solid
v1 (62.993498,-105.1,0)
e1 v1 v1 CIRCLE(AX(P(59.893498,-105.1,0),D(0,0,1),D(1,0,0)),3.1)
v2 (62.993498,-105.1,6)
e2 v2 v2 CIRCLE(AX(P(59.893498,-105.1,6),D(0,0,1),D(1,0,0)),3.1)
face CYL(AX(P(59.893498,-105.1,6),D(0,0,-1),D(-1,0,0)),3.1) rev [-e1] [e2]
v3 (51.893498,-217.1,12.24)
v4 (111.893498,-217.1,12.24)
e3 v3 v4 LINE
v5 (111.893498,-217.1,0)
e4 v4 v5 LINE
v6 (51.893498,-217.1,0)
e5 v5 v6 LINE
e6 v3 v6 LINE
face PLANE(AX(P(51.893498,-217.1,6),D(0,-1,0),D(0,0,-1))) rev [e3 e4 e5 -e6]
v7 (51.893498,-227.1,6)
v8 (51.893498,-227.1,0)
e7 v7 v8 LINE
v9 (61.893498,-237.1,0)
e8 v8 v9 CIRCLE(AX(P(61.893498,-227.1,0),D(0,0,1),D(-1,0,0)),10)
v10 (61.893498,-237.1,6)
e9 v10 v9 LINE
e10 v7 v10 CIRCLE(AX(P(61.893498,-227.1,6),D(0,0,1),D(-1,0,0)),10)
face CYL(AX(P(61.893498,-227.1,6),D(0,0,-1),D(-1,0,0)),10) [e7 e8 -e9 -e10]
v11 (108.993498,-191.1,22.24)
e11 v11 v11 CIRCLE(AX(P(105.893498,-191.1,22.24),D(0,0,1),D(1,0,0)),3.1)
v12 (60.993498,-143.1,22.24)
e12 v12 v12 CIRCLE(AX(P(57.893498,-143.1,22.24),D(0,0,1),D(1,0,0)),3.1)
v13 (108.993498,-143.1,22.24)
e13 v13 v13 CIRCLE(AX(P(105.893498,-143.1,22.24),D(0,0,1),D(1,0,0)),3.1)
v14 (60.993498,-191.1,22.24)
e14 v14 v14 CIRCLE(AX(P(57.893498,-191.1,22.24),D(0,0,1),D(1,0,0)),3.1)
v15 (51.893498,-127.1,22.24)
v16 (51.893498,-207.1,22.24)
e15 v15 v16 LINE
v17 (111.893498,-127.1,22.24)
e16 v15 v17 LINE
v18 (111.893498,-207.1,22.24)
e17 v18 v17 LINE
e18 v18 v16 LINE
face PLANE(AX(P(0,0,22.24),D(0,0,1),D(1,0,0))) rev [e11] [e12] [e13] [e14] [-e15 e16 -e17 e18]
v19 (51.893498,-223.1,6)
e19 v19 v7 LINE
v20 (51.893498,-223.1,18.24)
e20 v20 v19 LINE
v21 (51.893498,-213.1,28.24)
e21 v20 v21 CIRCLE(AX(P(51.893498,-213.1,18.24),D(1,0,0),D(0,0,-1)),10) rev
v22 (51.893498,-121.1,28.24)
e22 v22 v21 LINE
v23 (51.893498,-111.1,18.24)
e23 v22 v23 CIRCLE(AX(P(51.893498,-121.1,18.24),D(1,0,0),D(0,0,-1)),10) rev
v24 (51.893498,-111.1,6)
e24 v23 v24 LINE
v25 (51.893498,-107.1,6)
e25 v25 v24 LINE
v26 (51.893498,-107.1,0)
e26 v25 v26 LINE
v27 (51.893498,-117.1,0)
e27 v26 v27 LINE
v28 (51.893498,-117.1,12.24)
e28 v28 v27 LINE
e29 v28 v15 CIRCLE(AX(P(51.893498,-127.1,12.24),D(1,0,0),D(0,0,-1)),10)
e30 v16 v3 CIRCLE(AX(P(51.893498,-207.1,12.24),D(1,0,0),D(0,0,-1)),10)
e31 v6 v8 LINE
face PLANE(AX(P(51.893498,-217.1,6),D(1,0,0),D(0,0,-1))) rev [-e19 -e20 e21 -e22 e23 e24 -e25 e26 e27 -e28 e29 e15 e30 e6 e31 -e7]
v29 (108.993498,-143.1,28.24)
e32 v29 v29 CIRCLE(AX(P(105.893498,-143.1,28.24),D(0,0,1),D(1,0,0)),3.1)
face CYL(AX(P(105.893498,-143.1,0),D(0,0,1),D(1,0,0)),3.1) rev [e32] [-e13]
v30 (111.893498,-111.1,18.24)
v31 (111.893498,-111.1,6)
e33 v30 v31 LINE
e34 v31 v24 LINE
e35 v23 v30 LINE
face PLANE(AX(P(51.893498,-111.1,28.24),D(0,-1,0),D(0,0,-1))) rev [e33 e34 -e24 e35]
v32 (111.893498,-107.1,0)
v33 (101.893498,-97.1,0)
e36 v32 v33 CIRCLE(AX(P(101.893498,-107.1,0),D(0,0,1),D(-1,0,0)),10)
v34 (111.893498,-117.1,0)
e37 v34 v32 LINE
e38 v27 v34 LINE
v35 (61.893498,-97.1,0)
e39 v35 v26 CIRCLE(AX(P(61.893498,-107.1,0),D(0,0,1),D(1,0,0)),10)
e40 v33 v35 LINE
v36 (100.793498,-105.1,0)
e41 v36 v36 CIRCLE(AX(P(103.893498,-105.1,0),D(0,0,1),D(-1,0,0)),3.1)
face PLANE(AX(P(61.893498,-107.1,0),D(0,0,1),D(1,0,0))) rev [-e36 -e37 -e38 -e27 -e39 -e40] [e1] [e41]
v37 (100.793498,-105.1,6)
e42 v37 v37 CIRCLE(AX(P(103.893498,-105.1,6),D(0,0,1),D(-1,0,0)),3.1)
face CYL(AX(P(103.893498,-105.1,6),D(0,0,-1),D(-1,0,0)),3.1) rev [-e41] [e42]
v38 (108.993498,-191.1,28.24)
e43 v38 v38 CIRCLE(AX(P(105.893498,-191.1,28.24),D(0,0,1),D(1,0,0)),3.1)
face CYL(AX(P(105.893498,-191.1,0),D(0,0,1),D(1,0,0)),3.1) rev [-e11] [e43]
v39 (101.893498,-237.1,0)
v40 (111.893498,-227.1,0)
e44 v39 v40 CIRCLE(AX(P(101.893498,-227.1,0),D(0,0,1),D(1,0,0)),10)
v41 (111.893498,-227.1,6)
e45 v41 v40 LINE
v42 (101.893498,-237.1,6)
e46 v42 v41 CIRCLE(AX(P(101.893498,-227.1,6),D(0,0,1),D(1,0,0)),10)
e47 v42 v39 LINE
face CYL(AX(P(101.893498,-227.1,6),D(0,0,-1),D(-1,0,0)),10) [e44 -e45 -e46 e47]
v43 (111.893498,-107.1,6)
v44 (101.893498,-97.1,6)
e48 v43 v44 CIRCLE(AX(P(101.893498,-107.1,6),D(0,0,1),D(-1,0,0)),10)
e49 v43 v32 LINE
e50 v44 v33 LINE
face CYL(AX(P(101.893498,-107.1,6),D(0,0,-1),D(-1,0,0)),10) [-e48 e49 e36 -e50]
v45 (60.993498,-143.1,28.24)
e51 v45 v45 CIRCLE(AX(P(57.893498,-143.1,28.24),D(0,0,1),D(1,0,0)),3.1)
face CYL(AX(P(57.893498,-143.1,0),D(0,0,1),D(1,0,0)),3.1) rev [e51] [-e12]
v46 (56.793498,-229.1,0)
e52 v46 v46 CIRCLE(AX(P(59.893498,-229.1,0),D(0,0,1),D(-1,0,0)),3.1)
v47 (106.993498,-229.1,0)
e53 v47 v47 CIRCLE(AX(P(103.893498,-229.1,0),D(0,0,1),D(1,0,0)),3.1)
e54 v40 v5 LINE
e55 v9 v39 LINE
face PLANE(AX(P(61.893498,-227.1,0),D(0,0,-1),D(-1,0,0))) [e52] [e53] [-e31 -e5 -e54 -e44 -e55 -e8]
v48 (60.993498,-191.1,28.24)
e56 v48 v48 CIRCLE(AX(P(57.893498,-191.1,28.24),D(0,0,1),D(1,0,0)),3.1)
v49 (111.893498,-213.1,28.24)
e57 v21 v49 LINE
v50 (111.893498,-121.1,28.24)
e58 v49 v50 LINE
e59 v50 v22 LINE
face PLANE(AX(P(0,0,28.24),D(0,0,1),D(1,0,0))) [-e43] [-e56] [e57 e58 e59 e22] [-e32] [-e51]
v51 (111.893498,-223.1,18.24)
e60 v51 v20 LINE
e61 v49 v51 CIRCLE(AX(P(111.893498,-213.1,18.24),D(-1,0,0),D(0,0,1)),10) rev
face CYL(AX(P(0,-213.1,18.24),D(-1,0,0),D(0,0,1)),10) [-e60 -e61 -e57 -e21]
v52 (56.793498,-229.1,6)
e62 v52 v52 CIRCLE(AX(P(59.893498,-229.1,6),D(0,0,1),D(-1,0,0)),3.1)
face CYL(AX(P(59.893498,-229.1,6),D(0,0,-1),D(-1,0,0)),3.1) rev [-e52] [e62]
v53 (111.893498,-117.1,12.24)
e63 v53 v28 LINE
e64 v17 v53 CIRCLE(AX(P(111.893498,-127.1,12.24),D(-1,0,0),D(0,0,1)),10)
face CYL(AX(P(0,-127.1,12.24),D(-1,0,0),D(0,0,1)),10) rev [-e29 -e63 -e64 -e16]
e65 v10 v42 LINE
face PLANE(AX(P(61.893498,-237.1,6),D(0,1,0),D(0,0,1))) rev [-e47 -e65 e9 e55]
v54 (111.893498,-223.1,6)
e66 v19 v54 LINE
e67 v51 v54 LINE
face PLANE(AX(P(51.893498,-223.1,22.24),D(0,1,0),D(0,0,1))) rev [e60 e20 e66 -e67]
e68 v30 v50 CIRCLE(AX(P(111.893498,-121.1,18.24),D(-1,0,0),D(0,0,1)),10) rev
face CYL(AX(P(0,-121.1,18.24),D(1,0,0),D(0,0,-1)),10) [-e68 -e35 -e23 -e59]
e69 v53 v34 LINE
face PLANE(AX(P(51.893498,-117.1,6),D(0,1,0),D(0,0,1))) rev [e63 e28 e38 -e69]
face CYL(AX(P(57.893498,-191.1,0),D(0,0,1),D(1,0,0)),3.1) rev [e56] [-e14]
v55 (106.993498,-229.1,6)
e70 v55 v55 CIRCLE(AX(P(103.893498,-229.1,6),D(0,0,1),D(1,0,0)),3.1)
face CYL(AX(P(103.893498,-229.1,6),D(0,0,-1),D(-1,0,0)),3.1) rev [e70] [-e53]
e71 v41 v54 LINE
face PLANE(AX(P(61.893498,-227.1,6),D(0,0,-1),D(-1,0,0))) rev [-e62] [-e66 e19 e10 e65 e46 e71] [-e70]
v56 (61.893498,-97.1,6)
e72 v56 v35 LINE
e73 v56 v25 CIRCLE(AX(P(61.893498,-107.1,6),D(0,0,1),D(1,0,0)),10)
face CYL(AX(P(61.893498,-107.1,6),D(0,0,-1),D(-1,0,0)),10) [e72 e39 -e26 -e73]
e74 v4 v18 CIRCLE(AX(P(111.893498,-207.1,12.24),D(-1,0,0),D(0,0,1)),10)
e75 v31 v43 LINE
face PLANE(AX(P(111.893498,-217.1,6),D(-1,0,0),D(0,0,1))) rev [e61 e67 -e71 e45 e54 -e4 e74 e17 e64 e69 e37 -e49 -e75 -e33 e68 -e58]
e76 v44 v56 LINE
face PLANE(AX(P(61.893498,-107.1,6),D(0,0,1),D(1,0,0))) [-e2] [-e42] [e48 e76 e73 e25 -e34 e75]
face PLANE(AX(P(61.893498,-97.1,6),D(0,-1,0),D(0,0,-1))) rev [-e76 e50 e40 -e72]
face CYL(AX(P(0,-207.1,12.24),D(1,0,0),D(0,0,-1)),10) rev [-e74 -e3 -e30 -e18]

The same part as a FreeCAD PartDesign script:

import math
import FreeCAD as App
import Part
import Sketcher


def edges_at(feature, points):
    """Names of the edges that pass closest to the given points."""
    edges = feature.Shape.Edges
    near = lambda p: min(range(len(edges)), key=lambda i: edges[i].distToShape(Part.Vertex(*p))[0])
    return sorted({f"Edge{near(p) + 1}" for p in points})

doc = App.newDocument("Part")
body = doc.addObject("PartDesign::Body", "Body")

# Sketch on XY plane
sketch1 = body.newObject("Sketcher::SketchObject", "Sketch")
sketch1.AttachmentSupport = (doc.getObject("XY_Plane"), [""])
sketch1.MapMode = "FlatFace"
sketch1.addGeometry(Part.LineSegment(App.Vector(111.9, -217.1, 0), App.Vector(51.9, -217.1, 0)), False)
sketch1.addGeometry(Part.LineSegment(App.Vector(51.9, -217.1, 0), App.Vector(51.9, -227.1, 0)), False)
sketch1.addGeometry(Part.ArcOfCircle(Part.Circle(App.Vector(61.9, -227.1, 0), App.Vector(0, 0, 1), 10), math.radians(-180), math.radians(-90)), False)
sketch1.addGeometry(Part.LineSegment(App.Vector(61.9, -237.1, 0), App.Vector(101.9, -237.1, 0)), False)
sketch1.addGeometry(Part.ArcOfCircle(Part.Circle(App.Vector(101.9, -227.1, 0), App.Vector(0, 0, 1), 10), math.radians(-90), math.radians(0)), False)
sketch1.addGeometry(Part.LineSegment(App.Vector(111.9, -227.1, 0), App.Vector(111.9, -217.1, 0)), False)
sketch1.addGeometry(Part.Circle(App.Vector(103.9, -229.1, 0), App.Vector(0, 0, 1), 3.1), False)
sketch1.addGeometry(Part.Circle(App.Vector(59.9, -229.1, 0), App.Vector(0, 0, 1), 3.1), False)
sketch1.addConstraint(Sketcher.Constraint("Coincident", 0, 2, 1, 1))
sketch1.addConstraint(Sketcher.Constraint("Tangent", 1, 2, 2, 1))
sketch1.addConstraint(Sketcher.Constraint("Tangent", 2, 2, 3, 1))
sketch1.addConstraint(Sketcher.Constraint("Tangent", 3, 2, 4, 1))
sketch1.addConstraint(Sketcher.Constraint("Tangent", 4, 2, 5, 1))
sketch1.addConstraint(Sketcher.Constraint("Coincident", 5, 2, 0, 1))
sketch1.addConstraint(Sketcher.Constraint("Horizontal", 0))
sketch1.addConstraint(Sketcher.Constraint("Vertical", 1))
sketch1.addConstraint(Sketcher.Constraint("Horizontal", 3))
sketch1.addConstraint(Sketcher.Constraint("Vertical", 5))
sketch1.addConstraint(Sketcher.Constraint("Equal", 2, 4))
sketch1.addConstraint(Sketcher.Constraint("Equal", 6, 7))
sketch1.addConstraint(Sketcher.Constraint("Horizontal", 6, 3, 7, 3))
sketch1.addConstraint(Sketcher.Constraint("Radius", 2, 10.0))
sketch1.addConstraint(Sketcher.Constraint("Diameter", 6, 6.2))
sketch1.addConstraint(Sketcher.Constraint("DistanceX", 0, 2, 0, 1, 60.0))
sketch1.addConstraint(Sketcher.Constraint("DistanceY", 1, 2, 1, 1, 10.0))
sketch1.addConstraint(Sketcher.Constraint("DistanceX", 4, 3, 6, 3, 2.0))
sketch1.addConstraint(Sketcher.Constraint("DistanceY", 6, 3, 4, 3, 2.0))
sketch1.addConstraint(Sketcher.Constraint("DistanceX", 7, 3, 2, 3, 2.0))
sketch1.addConstraint(Sketcher.Constraint("DistanceY", 2, 3, -1, 1, 227.1))
sketch1.addConstraint(Sketcher.Constraint("DistanceX", -1, 1, 2, 3, 61.893498))
pad1 = body.newObject("PartDesign::Pad", "Pad")
pad1.Profile = sketch1
pad1.Length = 6
body2 = doc.addObject("PartDesign::Body", "Body001")

# Sketch on XY plane
sketch2 = body2.newObject("Sketcher::SketchObject", "Sketch001")
sketch2.AttachmentSupport = (doc.getObject("XY_Plane001"), [""])
sketch2.MapMode = "FlatFace"
sketch2.addGeometry(Part.LineSegment(App.Vector(101.9, -97.1, 0), App.Vector(61.9, -97.1, 0)), False)
sketch2.addGeometry(Part.ArcOfCircle(Part.Circle(App.Vector(61.9, -107.1, 0), App.Vector(0, 0, 1), 10), math.radians(90), math.radians(180)), False)
sketch2.addGeometry(Part.LineSegment(App.Vector(51.9, -107.1, 0), App.Vector(51.9, -117.1, 0)), False)
sketch2.addGeometry(Part.LineSegment(App.Vector(51.9, -117.1, 0), App.Vector(111.9, -117.1, 0)), False)
sketch2.addGeometry(Part.LineSegment(App.Vector(111.9, -117.1, 0), App.Vector(111.9, -107.1, 0)), False)
sketch2.addGeometry(Part.ArcOfCircle(Part.Circle(App.Vector(101.9, -107.1, 0), App.Vector(0, 0, 1), 10), math.radians(0), math.radians(90)), False)
sketch2.addGeometry(Part.Circle(App.Vector(103.9, -105.1, 0), App.Vector(0, 0, 1), 3.1), False)
sketch2.addGeometry(Part.Circle(App.Vector(59.9, -105.1, 0), App.Vector(0, 0, 1), 3.1), False)
sketch2.addConstraint(Sketcher.Constraint("Tangent", 0, 2, 1, 1))
sketch2.addConstraint(Sketcher.Constraint("Tangent", 1, 2, 2, 1))
sketch2.addConstraint(Sketcher.Constraint("Coincident", 2, 2, 3, 1))
sketch2.addConstraint(Sketcher.Constraint("Coincident", 3, 2, 4, 1))
sketch2.addConstraint(Sketcher.Constraint("Tangent", 4, 2, 5, 1))
sketch2.addConstraint(Sketcher.Constraint("Tangent", 5, 2, 0, 1))
sketch2.addConstraint(Sketcher.Constraint("Horizontal", 0))
sketch2.addConstraint(Sketcher.Constraint("Vertical", 2))
sketch2.addConstraint(Sketcher.Constraint("Horizontal", 3))
sketch2.addConstraint(Sketcher.Constraint("Vertical", 4))
sketch2.addConstraint(Sketcher.Constraint("Equal", 1, 5))
sketch2.addConstraint(Sketcher.Constraint("Equal", 6, 7))
sketch2.addConstraint(Sketcher.Constraint("Horizontal", 6, 3, 7, 3))
sketch2.addConstraint(Sketcher.Constraint("Radius", 1, 10.0))
sketch2.addConstraint(Sketcher.Constraint("Diameter", 6, 6.2))
sketch2.addConstraint(Sketcher.Constraint("DistanceX", 0, 2, 0, 1, 40.0))
sketch2.addConstraint(Sketcher.Constraint("DistanceY", 2, 2, 2, 1, 10.0))
sketch2.addConstraint(Sketcher.Constraint("DistanceX", 5, 3, 6, 3, 2.0))
sketch2.addConstraint(Sketcher.Constraint("DistanceY", 5, 3, 6, 3, 2.0))
sketch2.addConstraint(Sketcher.Constraint("DistanceX", 7, 3, 1, 3, 2.0))
sketch2.addConstraint(Sketcher.Constraint("DistanceY", 1, 3, -1, 1, 107.1))
sketch2.addConstraint(Sketcher.Constraint("DistanceX", -1, 1, 1, 3, 61.893498))
pad2 = body2.newObject("PartDesign::Pad", "Pad001")
pad2.Profile = sketch2
pad2.Length = 6
body.AllowCompound = True
doc.recompute()

boolean = body.newObject("PartDesign::Boolean", "Boolean")
boolean.Type = "Fuse"
boolean.addObjects([body2])

# Sketch on XY plane
sketch3 = body.newObject("Sketcher::SketchObject", "Sketch002")
sketch3.AttachmentSupport = (doc.getObject("XY_Plane"), [""])
sketch3.MapMode = "FlatFace"
sketch3.AttachmentOffset = App.Placement(App.Vector(0, 0, 6), App.Rotation())
sketch3.addGeometry(Part.LineSegment(App.Vector(52, -217, 0), App.Vector(52, -223, 0)), False)
sketch3.addGeometry(Part.LineSegment(App.Vector(52, -223, 0), App.Vector(112, -223, 0)), False)
sketch3.addGeometry(Part.LineSegment(App.Vector(112, -223, 0), App.Vector(112, -217, 0)), False)
sketch3.addGeometry(Part.LineSegment(App.Vector(112, -217, 0), App.Vector(52, -217, 0)), False)
sketch3.addGeometry(Part.LineSegment(App.Vector(52, -111, 0), App.Vector(52, -117, 0)), False)
sketch3.addGeometry(Part.LineSegment(App.Vector(52, -117, 0), App.Vector(112, -117, 0)), False)
sketch3.addGeometry(Part.LineSegment(App.Vector(112, -117, 0), App.Vector(112, -111, 0)), False)
sketch3.addGeometry(Part.LineSegment(App.Vector(112, -111, 0), App.Vector(52, -111, 0)), False)
sketch3.addConstraint(Sketcher.Constraint("Coincident", 0, 2, 1, 1))
sketch3.addConstraint(Sketcher.Constraint("Coincident", 1, 2, 2, 1))
sketch3.addConstraint(Sketcher.Constraint("Coincident", 2, 2, 3, 1))
sketch3.addConstraint(Sketcher.Constraint("Coincident", 3, 2, 0, 1))
sketch3.addConstraint(Sketcher.Constraint("Coincident", 4, 2, 5, 1))
sketch3.addConstraint(Sketcher.Constraint("Coincident", 5, 2, 6, 1))
sketch3.addConstraint(Sketcher.Constraint("Coincident", 6, 2, 7, 1))
sketch3.addConstraint(Sketcher.Constraint("Coincident", 7, 2, 4, 1))
sketch3.addConstraint(Sketcher.Constraint("Vertical", 0))
sketch3.addConstraint(Sketcher.Constraint("Horizontal", 1))
sketch3.addConstraint(Sketcher.Constraint("Vertical", 2))
sketch3.addConstraint(Sketcher.Constraint("Horizontal", 3))
sketch3.addConstraint(Sketcher.Constraint("Vertical", 4))
sketch3.addConstraint(Sketcher.Constraint("Horizontal", 5))
sketch3.addConstraint(Sketcher.Constraint("Vertical", 6))
sketch3.addConstraint(Sketcher.Constraint("Horizontal", 7))
sketch3.addConstraint(Sketcher.Constraint("Vertical", 3, 2, 4, 2))
sketch3.addConstraint(Sketcher.Constraint("Vertical", 2, 2, 5, 2))
sketch3.addConstraint(Sketcher.Constraint("Equal", 2, 4))
sketch3.addConstraint(Sketcher.Constraint("DistanceX", 1, 1, 1, 2, 60.0))
sketch3.addConstraint(Sketcher.Constraint("DistanceY", 0, 2, 0, 1, 6.0))
sketch3.addConstraint(Sketcher.Constraint("DistanceY", 3, 2, 4, 2, 100.0))
sketch3.addConstraint(Sketcher.Constraint("DistanceY", 0, 2, -1, 1, 223.1))
sketch3.addConstraint(Sketcher.Constraint("DistanceX", -1, 1, 0, 2, 51.893498))
pad3 = body.newObject("PartDesign::Pad", "Pad002")
pad3.Profile = sketch3
pad3.Length = 16.24

# Sketch on XY plane
sketch4 = body.newObject("Sketcher::SketchObject", "Sketch003")
sketch4.AttachmentSupport = (doc.getObject("XY_Plane"), [""])
sketch4.MapMode = "FlatFace"
sketch4.AttachmentOffset = App.Placement(App.Vector(0, 0, 22.24), App.Rotation())
sketch4.addGeometry(Part.LineSegment(App.Vector(52, -111, 0), App.Vector(52, -223, 0)), False)
sketch4.addGeometry(Part.LineSegment(App.Vector(52, -223, 0), App.Vector(112, -223, 0)), False)
sketch4.addGeometry(Part.LineSegment(App.Vector(112, -223, 0), App.Vector(112, -111, 0)), False)
sketch4.addGeometry(Part.LineSegment(App.Vector(112, -111, 0), App.Vector(52, -111, 0)), False)
sketch4.addConstraint(Sketcher.Constraint("Coincident", 0, 2, 1, 1))
sketch4.addConstraint(Sketcher.Constraint("Coincident", 1, 2, 2, 1))
sketch4.addConstraint(Sketcher.Constraint("Coincident", 2, 2, 3, 1))
sketch4.addConstraint(Sketcher.Constraint("Coincident", 3, 2, 0, 1))
sketch4.addConstraint(Sketcher.Constraint("Vertical", 0))
sketch4.addConstraint(Sketcher.Constraint("Horizontal", 1))
sketch4.addConstraint(Sketcher.Constraint("Vertical", 2))
sketch4.addConstraint(Sketcher.Constraint("Horizontal", 3))
sketch4.addConstraint(Sketcher.Constraint("DistanceX", 1, 1, 1, 2, 60.0))
sketch4.addConstraint(Sketcher.Constraint("DistanceY", 0, 2, 0, 1, 112.0))
sketch4.addConstraint(Sketcher.Constraint("DistanceY", 0, 2, -1, 1, 223.1))
sketch4.addConstraint(Sketcher.Constraint("DistanceX", -1, 1, 0, 2, 51.893498))
pad4 = body.newObject("PartDesign::Pad", "Pad003")
pad4.Profile = sketch4
pad4.Length = 6
doc.recompute()

fillet = body.newObject("PartDesign::Fillet", "Fillet")
fillet.Base = (pad4, edges_at(pad4, [
    (81.893, -217.1, 22.24),
    (81.893, -223.1, 28.24),
    (81.893, -111.1, 28.24),
    (81.893, -117.1, 22.24),
]))
fillet.Radius = 10

# Sketch on XY plane
sketch5 = body.newObject("Sketcher::SketchObject", "Sketch004")
sketch5.AttachmentSupport = (doc.getObject("XY_Plane"), [""])
sketch5.MapMode = "FlatFace"
sketch5.AttachmentOffset = App.Placement(App.Vector(0, 0, 28.24), App.Rotation())
sketch5.addGeometry(Part.Circle(App.Vector(105.9, -143.1, 0), App.Vector(0, 0, 1), 3.1), False)
sketch5.addGeometry(Part.Circle(App.Vector(105.9, -191.1, 0), App.Vector(0, 0, 1), 3.1), False)
sketch5.addGeometry(Part.Circle(App.Vector(57.9, -191.1, 0), App.Vector(0, 0, 1), 3.1), False)
sketch5.addGeometry(Part.Circle(App.Vector(57.9, -143.1, 0), App.Vector(0, 0, 1), 3.1), False)
sketch5.addConstraint(Sketcher.Constraint("Equal", 0, 1))
sketch5.addConstraint(Sketcher.Constraint("Equal", 1, 2))
sketch5.addConstraint(Sketcher.Constraint("Equal", 2, 3))
sketch5.addConstraint(Sketcher.Constraint("Horizontal", 1, 3, 2, 3))
sketch5.addConstraint(Sketcher.Constraint("Horizontal", 0, 3, 3, 3))
sketch5.addConstraint(Sketcher.Constraint("Vertical", 0, 3, 1, 3))
sketch5.addConstraint(Sketcher.Constraint("Vertical", 2, 3, 3, 3))
sketch5.addConstraint(Sketcher.Constraint("Diameter", 0, 6.2))
sketch5.addConstraint(Sketcher.Constraint("DistanceY", 1, 3, 0, 3, 48.0))
sketch5.addConstraint(Sketcher.Constraint("DistanceX", 2, 3, 1, 3, 48.0))
sketch5.addConstraint(Sketcher.Constraint("DistanceY", 0, 3, -1, 1, 143.1))
sketch5.addConstraint(Sketcher.Constraint("DistanceX", -1, 1, 0, 3, 105.893498))
pocket1 = body.newObject("PartDesign::Pocket", "Pocket")
pocket1.Profile = sketch5
pocket1.Type = "ThroughAll"

doc.recompute()
